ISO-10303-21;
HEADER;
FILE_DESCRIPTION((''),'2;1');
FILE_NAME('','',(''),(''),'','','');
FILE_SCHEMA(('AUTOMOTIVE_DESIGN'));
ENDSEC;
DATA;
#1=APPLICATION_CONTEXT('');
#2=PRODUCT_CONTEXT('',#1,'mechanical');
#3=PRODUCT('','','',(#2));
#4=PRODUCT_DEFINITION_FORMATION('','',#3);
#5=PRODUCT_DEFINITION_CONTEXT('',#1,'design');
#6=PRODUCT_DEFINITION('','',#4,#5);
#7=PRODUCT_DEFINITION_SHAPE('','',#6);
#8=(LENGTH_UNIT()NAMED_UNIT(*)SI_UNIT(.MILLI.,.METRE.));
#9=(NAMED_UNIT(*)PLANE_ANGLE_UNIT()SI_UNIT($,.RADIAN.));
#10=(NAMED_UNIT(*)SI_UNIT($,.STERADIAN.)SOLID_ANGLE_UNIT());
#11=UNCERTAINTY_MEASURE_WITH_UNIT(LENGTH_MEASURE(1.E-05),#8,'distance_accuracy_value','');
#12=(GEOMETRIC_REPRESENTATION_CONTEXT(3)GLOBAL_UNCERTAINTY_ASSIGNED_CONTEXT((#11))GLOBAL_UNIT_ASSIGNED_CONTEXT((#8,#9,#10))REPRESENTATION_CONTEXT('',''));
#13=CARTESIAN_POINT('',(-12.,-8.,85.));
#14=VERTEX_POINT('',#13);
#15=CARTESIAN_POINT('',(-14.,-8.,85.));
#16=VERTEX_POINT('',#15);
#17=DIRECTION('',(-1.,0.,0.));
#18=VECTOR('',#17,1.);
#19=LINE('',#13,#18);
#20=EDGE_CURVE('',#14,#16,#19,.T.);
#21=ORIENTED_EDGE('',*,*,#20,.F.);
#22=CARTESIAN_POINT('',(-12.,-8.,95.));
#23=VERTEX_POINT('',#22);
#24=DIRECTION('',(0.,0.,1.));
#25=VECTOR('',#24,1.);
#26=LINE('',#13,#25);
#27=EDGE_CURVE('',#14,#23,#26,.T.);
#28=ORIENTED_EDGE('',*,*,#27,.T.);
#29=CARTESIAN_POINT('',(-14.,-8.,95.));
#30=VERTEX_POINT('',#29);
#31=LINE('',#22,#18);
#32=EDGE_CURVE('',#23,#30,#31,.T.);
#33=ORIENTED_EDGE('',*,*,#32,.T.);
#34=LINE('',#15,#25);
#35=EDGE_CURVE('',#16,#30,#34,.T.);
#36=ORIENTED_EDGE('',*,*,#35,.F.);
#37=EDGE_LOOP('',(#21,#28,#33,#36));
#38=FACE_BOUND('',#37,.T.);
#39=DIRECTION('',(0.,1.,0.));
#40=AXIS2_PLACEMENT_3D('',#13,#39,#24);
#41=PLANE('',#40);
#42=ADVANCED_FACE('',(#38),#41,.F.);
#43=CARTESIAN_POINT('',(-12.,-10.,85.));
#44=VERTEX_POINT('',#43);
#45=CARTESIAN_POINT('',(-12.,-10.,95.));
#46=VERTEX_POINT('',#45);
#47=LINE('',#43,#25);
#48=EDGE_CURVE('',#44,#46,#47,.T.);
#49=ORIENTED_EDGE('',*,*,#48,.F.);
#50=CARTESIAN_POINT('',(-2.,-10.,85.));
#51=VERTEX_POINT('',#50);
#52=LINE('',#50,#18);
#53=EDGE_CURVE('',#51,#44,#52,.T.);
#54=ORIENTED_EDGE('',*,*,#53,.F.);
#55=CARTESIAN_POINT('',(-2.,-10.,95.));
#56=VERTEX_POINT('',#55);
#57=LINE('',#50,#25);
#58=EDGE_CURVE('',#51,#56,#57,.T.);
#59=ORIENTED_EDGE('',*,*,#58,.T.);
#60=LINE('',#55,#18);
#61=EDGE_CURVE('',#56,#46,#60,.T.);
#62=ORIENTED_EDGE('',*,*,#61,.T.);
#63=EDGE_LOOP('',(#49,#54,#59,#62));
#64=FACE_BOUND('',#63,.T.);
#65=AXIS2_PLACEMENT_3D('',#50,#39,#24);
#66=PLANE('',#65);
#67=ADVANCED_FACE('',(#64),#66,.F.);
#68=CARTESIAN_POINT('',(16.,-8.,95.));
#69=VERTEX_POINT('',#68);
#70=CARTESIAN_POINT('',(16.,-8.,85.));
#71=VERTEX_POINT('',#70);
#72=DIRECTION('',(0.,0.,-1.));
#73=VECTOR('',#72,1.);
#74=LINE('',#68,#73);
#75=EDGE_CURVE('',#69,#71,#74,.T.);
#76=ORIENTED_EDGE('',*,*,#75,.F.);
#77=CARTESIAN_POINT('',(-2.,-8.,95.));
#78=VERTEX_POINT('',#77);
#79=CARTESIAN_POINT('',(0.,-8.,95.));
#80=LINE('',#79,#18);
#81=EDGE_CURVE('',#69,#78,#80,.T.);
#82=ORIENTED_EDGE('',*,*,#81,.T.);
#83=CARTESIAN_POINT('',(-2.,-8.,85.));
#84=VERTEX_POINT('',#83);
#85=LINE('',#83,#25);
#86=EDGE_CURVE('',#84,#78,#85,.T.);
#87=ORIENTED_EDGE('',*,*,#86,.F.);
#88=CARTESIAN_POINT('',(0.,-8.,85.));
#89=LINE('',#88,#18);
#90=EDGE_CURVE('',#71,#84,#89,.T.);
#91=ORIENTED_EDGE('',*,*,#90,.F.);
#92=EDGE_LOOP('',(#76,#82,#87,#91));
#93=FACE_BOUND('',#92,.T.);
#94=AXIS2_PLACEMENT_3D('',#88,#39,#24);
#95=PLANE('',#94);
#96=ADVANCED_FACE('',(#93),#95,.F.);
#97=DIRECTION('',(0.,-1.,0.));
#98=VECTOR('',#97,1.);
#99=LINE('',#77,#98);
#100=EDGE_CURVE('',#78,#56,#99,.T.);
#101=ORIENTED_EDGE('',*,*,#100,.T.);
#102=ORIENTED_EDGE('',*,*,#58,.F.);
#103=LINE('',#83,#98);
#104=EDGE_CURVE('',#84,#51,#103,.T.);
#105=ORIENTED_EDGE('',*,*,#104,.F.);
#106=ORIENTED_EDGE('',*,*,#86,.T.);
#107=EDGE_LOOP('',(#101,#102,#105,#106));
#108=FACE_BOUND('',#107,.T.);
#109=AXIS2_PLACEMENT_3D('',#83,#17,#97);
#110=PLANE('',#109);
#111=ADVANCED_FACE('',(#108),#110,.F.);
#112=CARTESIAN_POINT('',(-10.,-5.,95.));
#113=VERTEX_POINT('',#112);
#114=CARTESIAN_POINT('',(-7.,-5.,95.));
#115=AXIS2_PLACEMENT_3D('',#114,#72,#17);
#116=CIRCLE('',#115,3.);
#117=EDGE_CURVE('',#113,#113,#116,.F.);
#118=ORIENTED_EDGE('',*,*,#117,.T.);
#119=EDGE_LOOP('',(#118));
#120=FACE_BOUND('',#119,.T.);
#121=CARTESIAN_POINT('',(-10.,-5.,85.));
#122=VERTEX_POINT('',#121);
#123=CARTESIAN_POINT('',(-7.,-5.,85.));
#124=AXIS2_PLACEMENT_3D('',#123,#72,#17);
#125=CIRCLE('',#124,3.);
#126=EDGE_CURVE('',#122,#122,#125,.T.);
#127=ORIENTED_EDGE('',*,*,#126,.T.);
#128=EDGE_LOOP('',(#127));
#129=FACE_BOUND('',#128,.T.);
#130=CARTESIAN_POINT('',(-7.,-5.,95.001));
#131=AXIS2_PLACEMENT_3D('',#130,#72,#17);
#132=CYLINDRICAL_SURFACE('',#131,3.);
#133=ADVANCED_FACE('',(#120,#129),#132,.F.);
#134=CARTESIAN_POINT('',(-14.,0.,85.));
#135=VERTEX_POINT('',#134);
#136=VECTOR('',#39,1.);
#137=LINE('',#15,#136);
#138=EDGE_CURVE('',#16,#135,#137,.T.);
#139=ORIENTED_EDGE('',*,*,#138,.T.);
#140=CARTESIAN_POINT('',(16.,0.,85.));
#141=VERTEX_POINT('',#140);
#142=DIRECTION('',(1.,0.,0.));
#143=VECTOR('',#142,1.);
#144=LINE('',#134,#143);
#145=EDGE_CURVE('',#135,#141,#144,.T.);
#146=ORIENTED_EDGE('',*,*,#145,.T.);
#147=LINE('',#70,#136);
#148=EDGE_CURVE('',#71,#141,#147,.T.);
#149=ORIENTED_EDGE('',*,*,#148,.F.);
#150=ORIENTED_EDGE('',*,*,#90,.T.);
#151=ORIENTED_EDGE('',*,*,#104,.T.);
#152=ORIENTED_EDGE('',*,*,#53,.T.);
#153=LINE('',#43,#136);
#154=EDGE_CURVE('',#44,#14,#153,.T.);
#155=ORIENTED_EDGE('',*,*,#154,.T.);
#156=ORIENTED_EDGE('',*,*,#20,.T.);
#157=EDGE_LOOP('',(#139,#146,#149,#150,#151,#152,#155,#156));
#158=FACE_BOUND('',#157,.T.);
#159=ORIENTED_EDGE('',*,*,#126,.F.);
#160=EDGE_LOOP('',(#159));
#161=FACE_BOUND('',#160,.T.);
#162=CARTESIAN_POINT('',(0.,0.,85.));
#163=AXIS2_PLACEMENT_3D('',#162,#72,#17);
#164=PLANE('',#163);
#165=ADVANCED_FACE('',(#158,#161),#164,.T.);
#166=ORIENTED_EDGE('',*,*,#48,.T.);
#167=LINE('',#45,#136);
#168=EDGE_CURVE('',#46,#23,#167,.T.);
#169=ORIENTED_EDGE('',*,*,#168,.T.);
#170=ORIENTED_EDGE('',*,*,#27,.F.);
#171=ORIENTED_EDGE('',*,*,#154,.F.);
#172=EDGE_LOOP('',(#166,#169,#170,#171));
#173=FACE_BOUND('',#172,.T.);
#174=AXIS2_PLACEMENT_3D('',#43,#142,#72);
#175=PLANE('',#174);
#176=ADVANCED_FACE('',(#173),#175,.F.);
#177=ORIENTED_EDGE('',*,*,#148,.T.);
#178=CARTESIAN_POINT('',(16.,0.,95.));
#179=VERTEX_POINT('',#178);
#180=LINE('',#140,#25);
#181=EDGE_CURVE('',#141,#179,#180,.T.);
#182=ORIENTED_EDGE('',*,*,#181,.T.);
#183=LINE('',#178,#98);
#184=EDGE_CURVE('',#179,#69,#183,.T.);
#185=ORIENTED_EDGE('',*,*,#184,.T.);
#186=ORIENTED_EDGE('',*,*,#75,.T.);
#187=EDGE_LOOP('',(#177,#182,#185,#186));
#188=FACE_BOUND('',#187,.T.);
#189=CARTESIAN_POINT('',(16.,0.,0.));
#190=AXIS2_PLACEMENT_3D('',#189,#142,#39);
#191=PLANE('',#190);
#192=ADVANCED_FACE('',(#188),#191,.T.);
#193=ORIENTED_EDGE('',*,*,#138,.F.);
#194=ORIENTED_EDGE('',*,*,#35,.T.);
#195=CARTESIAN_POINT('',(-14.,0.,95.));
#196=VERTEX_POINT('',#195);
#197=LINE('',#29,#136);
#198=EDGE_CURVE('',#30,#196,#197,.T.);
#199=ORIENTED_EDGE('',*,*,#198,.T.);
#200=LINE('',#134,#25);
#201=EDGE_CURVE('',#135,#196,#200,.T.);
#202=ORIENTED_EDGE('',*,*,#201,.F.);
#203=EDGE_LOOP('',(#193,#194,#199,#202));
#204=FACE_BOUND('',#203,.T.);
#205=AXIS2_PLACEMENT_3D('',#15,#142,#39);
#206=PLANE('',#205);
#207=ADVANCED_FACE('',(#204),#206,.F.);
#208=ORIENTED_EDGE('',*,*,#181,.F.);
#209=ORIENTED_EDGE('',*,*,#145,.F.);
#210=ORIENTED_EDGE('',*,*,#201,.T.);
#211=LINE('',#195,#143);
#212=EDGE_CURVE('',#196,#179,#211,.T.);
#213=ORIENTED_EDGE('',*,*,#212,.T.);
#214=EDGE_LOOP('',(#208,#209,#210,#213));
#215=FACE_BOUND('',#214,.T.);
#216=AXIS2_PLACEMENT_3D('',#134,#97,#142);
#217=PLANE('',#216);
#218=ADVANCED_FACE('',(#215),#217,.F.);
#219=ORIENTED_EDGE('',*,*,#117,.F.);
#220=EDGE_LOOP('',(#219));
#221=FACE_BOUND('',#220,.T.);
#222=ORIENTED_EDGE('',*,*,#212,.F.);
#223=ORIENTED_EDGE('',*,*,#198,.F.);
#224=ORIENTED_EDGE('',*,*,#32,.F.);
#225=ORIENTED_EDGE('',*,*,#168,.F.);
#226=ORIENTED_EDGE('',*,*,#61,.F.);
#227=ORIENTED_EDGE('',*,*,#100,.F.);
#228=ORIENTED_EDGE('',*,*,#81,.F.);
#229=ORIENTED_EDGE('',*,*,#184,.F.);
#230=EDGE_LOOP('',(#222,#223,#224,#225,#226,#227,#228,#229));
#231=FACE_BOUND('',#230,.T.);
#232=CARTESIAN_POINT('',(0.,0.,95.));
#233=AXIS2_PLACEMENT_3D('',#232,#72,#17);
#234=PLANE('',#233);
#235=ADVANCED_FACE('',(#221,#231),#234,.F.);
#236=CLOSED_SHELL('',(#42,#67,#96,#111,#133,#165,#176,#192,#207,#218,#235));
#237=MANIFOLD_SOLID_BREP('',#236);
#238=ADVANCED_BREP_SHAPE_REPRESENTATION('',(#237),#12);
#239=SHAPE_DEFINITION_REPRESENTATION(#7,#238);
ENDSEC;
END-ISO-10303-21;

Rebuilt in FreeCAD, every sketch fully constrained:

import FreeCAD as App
import Part
import Sketcher

V = App.Vector


def add_polygon(sketch, points):
    """Adds a closed chain of lines whose ends are joined by coincident constraints."""
    first, n = sketch.GeometryCount, len(points)
    for a, b in zip(points, points[1:] + points[:1]):
        sketch.addGeometry(Part.LineSegment(App.Vector(*a, 0), App.Vector(*b, 0)), False)
    for i in range(n):
        sketch.addConstraint(Sketcher.Constraint("Coincident", first + i, 2, first + (i + 1) % n, 1))

doc = App.newDocument("Part")
params = doc.addObject("Spreadsheet::Sheet", "Params")
for row, (alias, value) in enumerate([
    ("sketch1_width", "10 mm"),
    ("sketch1_width2", "2 mm"),
    ("sketch1_height", "8 mm"),
    ("pad1_length", "10 mm"),
    ("sketch2_diameter", "6 mm"),
    ("sketch3_width", "8 mm"),
    ("sketch3_height", "10 mm"),
    ("pad2_length", "16 mm"),
], start=1):
    params.set(f"A{row}", alias)
    params.set(f"B{row}", "=" + value)
    params.setAlias(f"B{row}", alias)

body = doc.addObject("PartDesign::Body", "Body")

sketch1 = body.newObject("Sketcher::SketchObject", "Sketch")
sketch1.AttachmentSupport = (doc.getObject("XY_Plane"), [""])
sketch1.MapMode = "FlatFace"
sketch1.AttachmentOffset = App.Placement(V(0, 0, 95), App.Rotation())
add_polygon(sketch1, [(-2, -10), (-12, -10), (-12, -8), (-14, -8), (-14, 0), (0, 0), (0, -8), (-2, -8)])
sketch1.addConstraint([
    Sketcher.Constraint("Horizontal", 0),
    Sketcher.Constraint("Vertical", 1),
    Sketcher.Constraint("Horizontal", 2),
    Sketcher.Constraint("Vertical", 3),
    Sketcher.Constraint("Horizontal", 4),
    Sketcher.Constraint("Vertical", 5),
    Sketcher.Constraint("Horizontal", 6),
    Sketcher.Constraint("Vertical", 7),
    Sketcher.Constraint("Coincident", 4, 2, -1, 1),
    Sketcher.Constraint("Horizontal", 2, 2, 5, 2),
    Sketcher.Constraint("Equal", 2, 6),
    Sketcher.Constraint("Equal", 6, 1),
    Sketcher.Constraint("DistanceX", 0, 2, 0, 1, 10.0),
    Sketcher.Constraint("DistanceX", 2, 2, 2, 1, 2.0),
    Sketcher.Constraint("DistanceY", 3, 1, 3, 2, 8.0),
])
sketch1.setExpression("Constraints[20]", "Params.sketch1_width")
sketch1.setExpression("Constraints[21]", "Params.sketch1_width2")
sketch1.setExpression("Constraints[22]", "Params.sketch1_height")
pad1 = body.newObject("PartDesign::Pad", "Pad")
pad1.Profile = sketch1
pad1.setExpression("Length", "Params.pad1_length")
pad1.Reversed = True

sketch2 = body.newObject("Sketcher::SketchObject", "Sketch001")
sketch2.AttachmentSupport = (doc.getObject("XY_Plane"), [""])
sketch2.MapMode = "FlatFace"
sketch2.AttachmentOffset = App.Placement(V(0, 0, 85), App.Rotation())
sketch2.addGeometry(Part.Circle(V(-7, -5, 0), V(0, 0, 1), 3), False)
sketch2.addConstraint([
    Sketcher.Constraint("Diameter", 0, 6.0),
    Sketcher.Constraint("DistanceX", 0, 3, -1, 1, 7.0),
    Sketcher.Constraint("DistanceY", 0, 3, -1, 1, 5.0),
])
sketch2.setExpression("Constraints[0]", "Params.sketch2_diameter")
pocket1 = body.newObject("PartDesign::Pocket", "Pocket")
pocket1.Profile = sketch2
pocket1.Type = "UpToFirst"
pocket1.Reversed = True

sketch3 = body.newObject("Sketcher::SketchObject", "Sketch002")
sketch3.AttachmentSupport = (doc.getObject("YZ_Plane"), [""])
sketch3.MapMode = "FlatFace"
add_polygon(sketch3, [(0, 95), (-8, 95), (-8, 85), (0, 85)])
sketch3.addConstraint([
    Sketcher.Constraint("Horizontal", 0),
    Sketcher.Constraint("Vertical", 1),
    Sketcher.Constraint("Horizontal", 2),
    Sketcher.Constraint("Vertical", 3),
    Sketcher.Constraint("PointOnObject", 2, 2, -2),
    Sketcher.Constraint("DistanceX", 0, 2, 0, 1, 8.0),
    Sketcher.Constraint("DistanceY", 1, 2, 1, 1, 10.0),
    Sketcher.Constraint("DistanceY", -1, 1, 0, 2, 95.0),
])
sketch3.setExpression("Constraints[9]", "Params.sketch3_width")
sketch3.setExpression("Constraints[10]", "Params.sketch3_height")
pad2 = body.newObject("PartDesign::Pad", "Pad001")
pad2.Profile = sketch3
pad2.setExpression("Length", "Params.pad2_length")

doc.recompute()
